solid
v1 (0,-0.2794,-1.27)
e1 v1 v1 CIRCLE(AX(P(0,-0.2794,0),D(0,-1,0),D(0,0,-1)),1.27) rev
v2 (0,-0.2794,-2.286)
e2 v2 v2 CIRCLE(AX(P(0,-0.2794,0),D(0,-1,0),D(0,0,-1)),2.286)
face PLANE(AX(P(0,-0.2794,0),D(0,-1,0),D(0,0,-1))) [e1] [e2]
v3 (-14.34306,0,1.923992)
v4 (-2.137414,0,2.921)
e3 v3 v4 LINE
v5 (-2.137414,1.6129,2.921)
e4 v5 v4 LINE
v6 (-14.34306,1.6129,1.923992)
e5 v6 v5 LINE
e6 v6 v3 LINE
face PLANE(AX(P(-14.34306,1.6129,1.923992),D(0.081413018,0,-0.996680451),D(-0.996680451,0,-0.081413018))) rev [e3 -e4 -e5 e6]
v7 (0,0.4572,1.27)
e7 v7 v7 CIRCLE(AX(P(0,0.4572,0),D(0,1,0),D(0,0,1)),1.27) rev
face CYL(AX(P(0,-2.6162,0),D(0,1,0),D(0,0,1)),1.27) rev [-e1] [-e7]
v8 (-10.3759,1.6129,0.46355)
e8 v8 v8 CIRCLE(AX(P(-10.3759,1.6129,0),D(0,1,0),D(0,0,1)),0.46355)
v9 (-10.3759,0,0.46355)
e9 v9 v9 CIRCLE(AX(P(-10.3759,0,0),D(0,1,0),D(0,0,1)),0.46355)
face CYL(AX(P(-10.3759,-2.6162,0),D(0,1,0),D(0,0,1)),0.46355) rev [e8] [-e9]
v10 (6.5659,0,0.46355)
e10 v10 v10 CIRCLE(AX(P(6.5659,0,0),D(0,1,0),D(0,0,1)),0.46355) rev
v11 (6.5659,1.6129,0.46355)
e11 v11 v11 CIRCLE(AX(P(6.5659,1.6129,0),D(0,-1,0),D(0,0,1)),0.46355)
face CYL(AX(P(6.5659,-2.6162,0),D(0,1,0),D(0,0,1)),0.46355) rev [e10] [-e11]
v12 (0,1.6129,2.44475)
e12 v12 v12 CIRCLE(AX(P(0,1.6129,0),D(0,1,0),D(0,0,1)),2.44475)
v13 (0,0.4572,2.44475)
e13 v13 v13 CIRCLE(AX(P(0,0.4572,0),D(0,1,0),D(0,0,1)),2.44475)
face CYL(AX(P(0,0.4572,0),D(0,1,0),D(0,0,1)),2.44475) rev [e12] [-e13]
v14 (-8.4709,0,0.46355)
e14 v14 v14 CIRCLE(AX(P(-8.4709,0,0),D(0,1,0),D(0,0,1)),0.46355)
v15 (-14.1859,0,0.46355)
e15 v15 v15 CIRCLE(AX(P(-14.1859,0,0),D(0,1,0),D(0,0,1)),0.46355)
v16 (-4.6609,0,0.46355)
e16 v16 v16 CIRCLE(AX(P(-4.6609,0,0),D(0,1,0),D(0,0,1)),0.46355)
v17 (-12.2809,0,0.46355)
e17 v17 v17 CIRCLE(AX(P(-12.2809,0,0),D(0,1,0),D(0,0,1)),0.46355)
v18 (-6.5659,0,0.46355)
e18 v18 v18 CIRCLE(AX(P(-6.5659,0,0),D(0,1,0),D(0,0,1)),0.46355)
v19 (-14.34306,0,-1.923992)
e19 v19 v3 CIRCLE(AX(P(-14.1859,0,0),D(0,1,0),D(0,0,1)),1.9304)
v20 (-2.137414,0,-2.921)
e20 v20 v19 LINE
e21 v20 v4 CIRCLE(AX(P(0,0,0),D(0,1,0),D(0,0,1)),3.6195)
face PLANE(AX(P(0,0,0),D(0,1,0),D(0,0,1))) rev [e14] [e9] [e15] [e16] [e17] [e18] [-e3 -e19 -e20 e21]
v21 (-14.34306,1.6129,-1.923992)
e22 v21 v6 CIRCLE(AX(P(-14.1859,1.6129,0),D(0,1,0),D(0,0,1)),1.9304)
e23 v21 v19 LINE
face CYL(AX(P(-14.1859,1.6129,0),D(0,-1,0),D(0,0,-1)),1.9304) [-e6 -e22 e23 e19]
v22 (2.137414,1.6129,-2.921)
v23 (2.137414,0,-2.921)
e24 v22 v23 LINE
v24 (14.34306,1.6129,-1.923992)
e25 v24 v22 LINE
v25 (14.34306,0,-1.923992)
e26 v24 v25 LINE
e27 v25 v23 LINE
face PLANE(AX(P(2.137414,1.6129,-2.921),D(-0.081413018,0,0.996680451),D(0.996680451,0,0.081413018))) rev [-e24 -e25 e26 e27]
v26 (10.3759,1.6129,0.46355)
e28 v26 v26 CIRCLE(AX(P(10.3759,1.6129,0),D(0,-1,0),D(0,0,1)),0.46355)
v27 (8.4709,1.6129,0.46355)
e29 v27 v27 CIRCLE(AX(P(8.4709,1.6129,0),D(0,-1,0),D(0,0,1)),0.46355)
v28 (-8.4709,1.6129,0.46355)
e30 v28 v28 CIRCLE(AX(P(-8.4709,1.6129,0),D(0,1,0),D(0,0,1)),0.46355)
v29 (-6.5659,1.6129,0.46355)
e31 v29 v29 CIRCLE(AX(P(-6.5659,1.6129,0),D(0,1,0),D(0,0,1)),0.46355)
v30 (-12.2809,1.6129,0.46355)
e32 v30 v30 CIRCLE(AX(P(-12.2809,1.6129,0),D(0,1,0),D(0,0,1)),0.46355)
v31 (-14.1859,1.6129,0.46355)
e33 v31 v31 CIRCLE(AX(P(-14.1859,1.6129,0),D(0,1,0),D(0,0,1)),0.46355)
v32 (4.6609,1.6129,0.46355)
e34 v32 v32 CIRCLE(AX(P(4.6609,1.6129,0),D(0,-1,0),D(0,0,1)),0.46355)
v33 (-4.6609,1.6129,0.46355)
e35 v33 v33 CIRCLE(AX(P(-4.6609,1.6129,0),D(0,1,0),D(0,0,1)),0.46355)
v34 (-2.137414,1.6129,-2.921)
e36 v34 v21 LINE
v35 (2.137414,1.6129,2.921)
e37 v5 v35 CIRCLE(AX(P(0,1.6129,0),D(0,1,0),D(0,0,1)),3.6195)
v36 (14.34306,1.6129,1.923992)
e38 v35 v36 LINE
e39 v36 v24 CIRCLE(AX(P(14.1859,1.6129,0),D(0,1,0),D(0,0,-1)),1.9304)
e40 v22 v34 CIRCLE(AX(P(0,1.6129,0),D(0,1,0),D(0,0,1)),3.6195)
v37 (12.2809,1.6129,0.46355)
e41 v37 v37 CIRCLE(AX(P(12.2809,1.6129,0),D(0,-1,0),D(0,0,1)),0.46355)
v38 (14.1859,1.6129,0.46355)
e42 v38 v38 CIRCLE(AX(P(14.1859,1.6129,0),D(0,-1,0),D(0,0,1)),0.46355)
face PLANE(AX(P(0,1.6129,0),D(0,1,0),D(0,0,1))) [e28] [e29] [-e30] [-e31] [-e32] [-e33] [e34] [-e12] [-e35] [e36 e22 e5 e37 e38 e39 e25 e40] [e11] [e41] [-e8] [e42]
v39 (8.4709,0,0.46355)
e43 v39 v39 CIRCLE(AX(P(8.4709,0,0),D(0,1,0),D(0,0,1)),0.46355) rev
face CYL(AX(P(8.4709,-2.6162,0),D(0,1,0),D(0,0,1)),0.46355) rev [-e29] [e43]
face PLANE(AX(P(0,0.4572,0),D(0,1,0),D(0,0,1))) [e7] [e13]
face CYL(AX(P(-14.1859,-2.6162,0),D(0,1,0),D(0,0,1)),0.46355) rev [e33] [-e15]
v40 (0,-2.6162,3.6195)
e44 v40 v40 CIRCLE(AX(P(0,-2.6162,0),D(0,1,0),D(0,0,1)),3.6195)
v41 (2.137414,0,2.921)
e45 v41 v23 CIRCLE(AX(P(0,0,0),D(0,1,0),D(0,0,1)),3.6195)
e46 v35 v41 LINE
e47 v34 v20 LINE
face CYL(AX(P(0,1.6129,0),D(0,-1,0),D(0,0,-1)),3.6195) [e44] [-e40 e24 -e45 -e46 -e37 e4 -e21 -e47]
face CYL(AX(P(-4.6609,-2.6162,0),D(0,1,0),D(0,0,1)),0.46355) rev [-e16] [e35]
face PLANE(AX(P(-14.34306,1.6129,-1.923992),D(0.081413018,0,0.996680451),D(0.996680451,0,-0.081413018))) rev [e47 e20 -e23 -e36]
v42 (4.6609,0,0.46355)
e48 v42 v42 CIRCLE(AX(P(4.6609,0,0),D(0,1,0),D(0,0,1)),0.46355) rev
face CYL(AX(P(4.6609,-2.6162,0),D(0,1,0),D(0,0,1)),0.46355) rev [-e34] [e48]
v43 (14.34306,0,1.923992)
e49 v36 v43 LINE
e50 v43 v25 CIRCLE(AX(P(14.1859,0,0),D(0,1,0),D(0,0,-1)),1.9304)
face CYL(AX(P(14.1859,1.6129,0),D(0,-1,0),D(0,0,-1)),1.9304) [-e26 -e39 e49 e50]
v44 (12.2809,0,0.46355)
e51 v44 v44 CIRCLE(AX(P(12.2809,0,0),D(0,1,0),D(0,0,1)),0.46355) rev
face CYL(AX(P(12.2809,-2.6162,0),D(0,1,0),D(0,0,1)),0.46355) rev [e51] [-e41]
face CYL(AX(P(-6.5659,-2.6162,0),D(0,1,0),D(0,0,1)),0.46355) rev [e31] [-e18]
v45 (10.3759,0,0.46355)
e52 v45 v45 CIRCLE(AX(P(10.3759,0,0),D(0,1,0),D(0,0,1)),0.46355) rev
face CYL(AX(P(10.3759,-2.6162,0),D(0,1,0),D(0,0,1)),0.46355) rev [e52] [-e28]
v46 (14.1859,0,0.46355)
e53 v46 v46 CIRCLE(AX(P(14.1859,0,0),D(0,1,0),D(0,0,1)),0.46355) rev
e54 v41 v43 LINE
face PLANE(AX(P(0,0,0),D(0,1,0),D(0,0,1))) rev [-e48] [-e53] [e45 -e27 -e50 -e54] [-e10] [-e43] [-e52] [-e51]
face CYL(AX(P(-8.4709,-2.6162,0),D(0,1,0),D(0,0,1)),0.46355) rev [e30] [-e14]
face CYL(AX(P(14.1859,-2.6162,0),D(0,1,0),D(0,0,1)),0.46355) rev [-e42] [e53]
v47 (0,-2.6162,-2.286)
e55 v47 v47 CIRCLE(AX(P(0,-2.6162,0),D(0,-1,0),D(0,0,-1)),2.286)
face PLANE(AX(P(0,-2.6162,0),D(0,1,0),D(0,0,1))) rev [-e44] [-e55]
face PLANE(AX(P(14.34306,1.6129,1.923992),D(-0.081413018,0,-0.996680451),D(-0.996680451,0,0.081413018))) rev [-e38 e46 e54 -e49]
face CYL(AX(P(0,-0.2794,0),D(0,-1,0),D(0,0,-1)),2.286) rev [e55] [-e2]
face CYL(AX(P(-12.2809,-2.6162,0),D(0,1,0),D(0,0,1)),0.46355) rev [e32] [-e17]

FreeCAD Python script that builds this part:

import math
import FreeCAD as App
import Part
import Sketcher

V = App.Vector
Q = App.Units.Quantity

doc = App.newDocument("Part")
body = doc.addObject("PartDesign::Body", "Body")

sketch1 = body.newObject("Sketcher::SketchObject", "Sketch")
sketch1.AttachmentSupport = (doc.getObject("XZ_Plane"), [""])
sketch1.MapMode = "FlatFace"
sketch1.addGeometry([
    Part.LineSegment(V(-2.137414, -2.921, 0), V(-14.34306, -1.923992, 0)),
    Part.ArcOfCircle(Part.Circle(V(-14.1859, 0, 0), V(0, 0, 1), 1.9304), math.radians(94.669791), math.radians(265.330209)),
    Part.LineSegment(V(-14.34306, 1.923992, 0), V(-2.137414, 2.921, 0)),
    Part.ArcOfCircle(Part.Circle(V(0, 0, 0), V(0, 0, 1), 3.6195), math.radians(53.805553), math.radians(126.194447)),
    Part.LineSegment(V(2.137414, 2.921, 0), V(14.34306, 1.923992, 0)),
    Part.ArcOfCircle(Part.Circle(V(14.1859, 0, 0), V(0, 0, 1), 1.9304), math.radians(-85.330209), math.radians(85.330209)),
    Part.LineSegment(V(14.34306, -1.923992, 0), V(2.137414, -2.921, 0)),
    Part.ArcOfCircle(Part.Circle(V(0, 0, 0), V(0, 0, 1), 3.6195), math.radians(-126.194447), math.radians(-53.805553)),
], False)
sketch1.addConstraint([
    Sketcher.Constraint("Tangent", 0, 2, 1, 2),
    Sketcher.Constraint("Tangent", 1, 1, 2, 1),
    Sketcher.Constraint("Coincident", 2, 2, 3, 2),
    Sketcher.Constraint("Coincident", 3, 1, 4, 1),
    Sketcher.Constraint("Tangent", 4, 2, 5, 2),
    Sketcher.Constraint("Tangent", 5, 1, 6, 1),
    Sketcher.Constraint("Coincident", 6, 2, 7, 2),
    Sketcher.Constraint("Coincident", 7, 1, 0, 1),
    Sketcher.Constraint("Coincident", 3, 3, -1, 1),
    Sketcher.Constraint("Coincident", 7, 3, -1, 1),
    Sketcher.Constraint("Equal", 1, 5),
    Sketcher.Constraint("Equal", 3, 7),
    Sketcher.Constraint("Symmetric", 1, 3, 5, 3, -1, 1),
    Sketcher.Constraint("Symmetric", 1, 1, 4, 2, -2),
    Sketcher.Constraint("Parallel", 0, 4),
    Sketcher.Constraint("Parallel", 2, 6),
    Sketcher.Constraint("Radius", 1, Q("0.076 in")),
    Sketcher.Constraint("Radius", 3, Q("0.1425 in")),
    Sketcher.Constraint("DistanceY", 6, 2, 3, 1, Q("0.23 in")),
    Sketcher.Constraint("DistanceX", 1, 3, 5, 3, Q("1.117 in")),
])
pad1 = body.newObject("PartDesign::Pad", "Pad")
pad1.Profile = sketch1
pad1.Length = Q("0.0635 in")
pad1.Reversed = True

sketch2 = body.newObject("Sketcher::SketchObject", "Sketch001")
sketch2.AttachmentSupport = (doc.getObject("XZ_Plane"), [""])
sketch2.MapMode = "FlatFace"
sketch2.AttachmentOffset = App.Placement(V(0, 0, -0.0635 * 25.4), App.Rotation())
sketch2.addGeometry(Part.Circle(V(0, 0, 0), V(0, 0, 1), 3.6195), False)
sketch2.addConstraint([
    Sketcher.Constraint("Coincident", 0, 3, -1, 1),
    Sketcher.Constraint("Diameter", 0, Q("0.285 in")),
])
pad2 = body.newObject("PartDesign::Pad", "Pad001")
pad2.Profile = sketch2
pad2.Length = Q("0.1665 in")

sketch3 = body.newObject("Sketcher::SketchObject", "Sketch002")
sketch3.AttachmentSupport = (doc.getObject("XZ_Plane"), [""])
sketch3.MapMode = "FlatFace"
sketch3.AttachmentOffset = App.Placement(V(0, 0, -0.0635 * 25.4), App.Rotation())
sketch3.addGeometry([
    Part.Circle(V(-14.1859, 0, 0), V(0, 0, 1), 0.46355),
    Part.Circle(V(0, 0, 0), V(0, 0, 1), 1.27),
    Part.Circle(V(-4.6609, 0, 0), V(0, 0, 1), 0.46355),
    Part.Circle(V(-6.5659, 0, 0), V(0, 0, 1), 0.46355),
    Part.Circle(V(-8.4709, 0, 0), V(0, 0, 1), 0.46355),
    Part.Circle(V(-10.3759, 0, 0), V(0, 0, 1), 0.46355),
    Part.Circle(V(-12.2809, 0, 0), V(0, 0, 1), 0.46355),
], False)
sketch3.addConstraint([
    Sketcher.Constraint("Coincident", 1, 3, -1, 1),
    Sketcher.Constraint("Equal", 0, 2),
    Sketcher.Constraint("Equal", 2, 3),
    Sketcher.Constraint("Equal", 3, 4),
    Sketcher.Constraint("Equal", 4, 5),
    Sketcher.Constraint("Equal", 5, 6),
    Sketcher.Constraint("PointOnObject", 0, 3, -1),
    Sketcher.Constraint("PointOnObject", 2, 3, -1),
    Sketcher.Constraint("PointOnObject", 3, 3, -1),
    Sketcher.Constraint("PointOnObject", 4, 3, -1),
    Sketcher.Constraint("PointOnObject", 5, 3, -1),
    Sketcher.Constraint("PointOnObject", 6, 3, -1),
    Sketcher.Constraint("Diameter", 1, Q("0.1 in")),
    Sketcher.Constraint("Diameter", 0, Q("0.0365 in")),
    Sketcher.Constraint("DistanceX", 0, 3, 3, 3, Q("0.3 in")),
    Sketcher.Constraint("DistanceX", 6, 3, 2, 3, Q("0.3 in")),
    Sketcher.Constraint("DistanceX", 4, 3, 2, 3, Q("0.15 in")),
    Sketcher.Constraint("DistanceX", 5, 3, 3, 3, Q("0.15 in")),
    Sketcher.Constraint("DistanceX", 0, 3, 2, 3, Q("0.375 in")),
    Sketcher.Constraint("DistanceX", 0, 3, -1, 1, Q("0.5585 in")),
])
pocket1 = body.newObject("PartDesign::Pocket", "Pocket")
pocket1.Profile = sketch3
pocket1.Type = "ThroughAll"
pocket1.Reversed = True
doc.recompute()

mirrored = body.newObject("PartDesign::Mirrored", "Mirrored")
mirrored.Originals = [pocket1]
mirrored.MirrorPlane = (doc.getObject("YZ_Plane"), [""])
body.Tip = mirrored

sketch4 = body.newObject("Sketcher::SketchObject", "Sketch003")
sketch4.AttachmentSupport = (doc.getObject("XZ_Plane"), [""])
sketch4.MapMode = "FlatFace"
sketch4.AttachmentOffset = App.Placement(V(0, 0, -0.0635 * 25.4), App.Rotation())
sketch4.addGeometry(Part.Circle(V(0, 0, 0), V(0, 0, 1), 2.44475), False)
sketch4.addConstraint([
    Sketcher.Constraint("Coincident", 0, 3, -1, 1),
    Sketcher.Constraint("Diameter", 0, Q("0.1925 in")),
])
pocket2 = body.newObject("PartDesign::Pocket", "Pocket001")
pocket2.Profile = sketch4
pocket2.Length = Q("0.0455 in")
pocket2.Reversed = True

sketch5 = body.newObject("Sketcher::SketchObject", "Sketch004")
sketch5.AttachmentSupport = (doc.getObject("XZ_Plane"), [""])
sketch5.MapMode = "FlatFace"
sketch5.AttachmentOffset = App.Placement(V(0, 0, 0.103 * 25.4), App.Rotation())
sketch5.addGeometry(Part.Circle(V(0, 0, 0), V(0, 0, 1), 2.286), False)
sketch5.addConstraint([
    Sketcher.Constraint("Coincident", 0, 3, -1, 1),
    Sketcher.Constraint("Diameter", 0, Q("0.18 in")),
])
pocket3 = body.newObject("PartDesign::Pocket", "Pocket002")
pocket3.Profile = sketch5
pocket3.Length = Q("0.092 in")

doc.recompute()
